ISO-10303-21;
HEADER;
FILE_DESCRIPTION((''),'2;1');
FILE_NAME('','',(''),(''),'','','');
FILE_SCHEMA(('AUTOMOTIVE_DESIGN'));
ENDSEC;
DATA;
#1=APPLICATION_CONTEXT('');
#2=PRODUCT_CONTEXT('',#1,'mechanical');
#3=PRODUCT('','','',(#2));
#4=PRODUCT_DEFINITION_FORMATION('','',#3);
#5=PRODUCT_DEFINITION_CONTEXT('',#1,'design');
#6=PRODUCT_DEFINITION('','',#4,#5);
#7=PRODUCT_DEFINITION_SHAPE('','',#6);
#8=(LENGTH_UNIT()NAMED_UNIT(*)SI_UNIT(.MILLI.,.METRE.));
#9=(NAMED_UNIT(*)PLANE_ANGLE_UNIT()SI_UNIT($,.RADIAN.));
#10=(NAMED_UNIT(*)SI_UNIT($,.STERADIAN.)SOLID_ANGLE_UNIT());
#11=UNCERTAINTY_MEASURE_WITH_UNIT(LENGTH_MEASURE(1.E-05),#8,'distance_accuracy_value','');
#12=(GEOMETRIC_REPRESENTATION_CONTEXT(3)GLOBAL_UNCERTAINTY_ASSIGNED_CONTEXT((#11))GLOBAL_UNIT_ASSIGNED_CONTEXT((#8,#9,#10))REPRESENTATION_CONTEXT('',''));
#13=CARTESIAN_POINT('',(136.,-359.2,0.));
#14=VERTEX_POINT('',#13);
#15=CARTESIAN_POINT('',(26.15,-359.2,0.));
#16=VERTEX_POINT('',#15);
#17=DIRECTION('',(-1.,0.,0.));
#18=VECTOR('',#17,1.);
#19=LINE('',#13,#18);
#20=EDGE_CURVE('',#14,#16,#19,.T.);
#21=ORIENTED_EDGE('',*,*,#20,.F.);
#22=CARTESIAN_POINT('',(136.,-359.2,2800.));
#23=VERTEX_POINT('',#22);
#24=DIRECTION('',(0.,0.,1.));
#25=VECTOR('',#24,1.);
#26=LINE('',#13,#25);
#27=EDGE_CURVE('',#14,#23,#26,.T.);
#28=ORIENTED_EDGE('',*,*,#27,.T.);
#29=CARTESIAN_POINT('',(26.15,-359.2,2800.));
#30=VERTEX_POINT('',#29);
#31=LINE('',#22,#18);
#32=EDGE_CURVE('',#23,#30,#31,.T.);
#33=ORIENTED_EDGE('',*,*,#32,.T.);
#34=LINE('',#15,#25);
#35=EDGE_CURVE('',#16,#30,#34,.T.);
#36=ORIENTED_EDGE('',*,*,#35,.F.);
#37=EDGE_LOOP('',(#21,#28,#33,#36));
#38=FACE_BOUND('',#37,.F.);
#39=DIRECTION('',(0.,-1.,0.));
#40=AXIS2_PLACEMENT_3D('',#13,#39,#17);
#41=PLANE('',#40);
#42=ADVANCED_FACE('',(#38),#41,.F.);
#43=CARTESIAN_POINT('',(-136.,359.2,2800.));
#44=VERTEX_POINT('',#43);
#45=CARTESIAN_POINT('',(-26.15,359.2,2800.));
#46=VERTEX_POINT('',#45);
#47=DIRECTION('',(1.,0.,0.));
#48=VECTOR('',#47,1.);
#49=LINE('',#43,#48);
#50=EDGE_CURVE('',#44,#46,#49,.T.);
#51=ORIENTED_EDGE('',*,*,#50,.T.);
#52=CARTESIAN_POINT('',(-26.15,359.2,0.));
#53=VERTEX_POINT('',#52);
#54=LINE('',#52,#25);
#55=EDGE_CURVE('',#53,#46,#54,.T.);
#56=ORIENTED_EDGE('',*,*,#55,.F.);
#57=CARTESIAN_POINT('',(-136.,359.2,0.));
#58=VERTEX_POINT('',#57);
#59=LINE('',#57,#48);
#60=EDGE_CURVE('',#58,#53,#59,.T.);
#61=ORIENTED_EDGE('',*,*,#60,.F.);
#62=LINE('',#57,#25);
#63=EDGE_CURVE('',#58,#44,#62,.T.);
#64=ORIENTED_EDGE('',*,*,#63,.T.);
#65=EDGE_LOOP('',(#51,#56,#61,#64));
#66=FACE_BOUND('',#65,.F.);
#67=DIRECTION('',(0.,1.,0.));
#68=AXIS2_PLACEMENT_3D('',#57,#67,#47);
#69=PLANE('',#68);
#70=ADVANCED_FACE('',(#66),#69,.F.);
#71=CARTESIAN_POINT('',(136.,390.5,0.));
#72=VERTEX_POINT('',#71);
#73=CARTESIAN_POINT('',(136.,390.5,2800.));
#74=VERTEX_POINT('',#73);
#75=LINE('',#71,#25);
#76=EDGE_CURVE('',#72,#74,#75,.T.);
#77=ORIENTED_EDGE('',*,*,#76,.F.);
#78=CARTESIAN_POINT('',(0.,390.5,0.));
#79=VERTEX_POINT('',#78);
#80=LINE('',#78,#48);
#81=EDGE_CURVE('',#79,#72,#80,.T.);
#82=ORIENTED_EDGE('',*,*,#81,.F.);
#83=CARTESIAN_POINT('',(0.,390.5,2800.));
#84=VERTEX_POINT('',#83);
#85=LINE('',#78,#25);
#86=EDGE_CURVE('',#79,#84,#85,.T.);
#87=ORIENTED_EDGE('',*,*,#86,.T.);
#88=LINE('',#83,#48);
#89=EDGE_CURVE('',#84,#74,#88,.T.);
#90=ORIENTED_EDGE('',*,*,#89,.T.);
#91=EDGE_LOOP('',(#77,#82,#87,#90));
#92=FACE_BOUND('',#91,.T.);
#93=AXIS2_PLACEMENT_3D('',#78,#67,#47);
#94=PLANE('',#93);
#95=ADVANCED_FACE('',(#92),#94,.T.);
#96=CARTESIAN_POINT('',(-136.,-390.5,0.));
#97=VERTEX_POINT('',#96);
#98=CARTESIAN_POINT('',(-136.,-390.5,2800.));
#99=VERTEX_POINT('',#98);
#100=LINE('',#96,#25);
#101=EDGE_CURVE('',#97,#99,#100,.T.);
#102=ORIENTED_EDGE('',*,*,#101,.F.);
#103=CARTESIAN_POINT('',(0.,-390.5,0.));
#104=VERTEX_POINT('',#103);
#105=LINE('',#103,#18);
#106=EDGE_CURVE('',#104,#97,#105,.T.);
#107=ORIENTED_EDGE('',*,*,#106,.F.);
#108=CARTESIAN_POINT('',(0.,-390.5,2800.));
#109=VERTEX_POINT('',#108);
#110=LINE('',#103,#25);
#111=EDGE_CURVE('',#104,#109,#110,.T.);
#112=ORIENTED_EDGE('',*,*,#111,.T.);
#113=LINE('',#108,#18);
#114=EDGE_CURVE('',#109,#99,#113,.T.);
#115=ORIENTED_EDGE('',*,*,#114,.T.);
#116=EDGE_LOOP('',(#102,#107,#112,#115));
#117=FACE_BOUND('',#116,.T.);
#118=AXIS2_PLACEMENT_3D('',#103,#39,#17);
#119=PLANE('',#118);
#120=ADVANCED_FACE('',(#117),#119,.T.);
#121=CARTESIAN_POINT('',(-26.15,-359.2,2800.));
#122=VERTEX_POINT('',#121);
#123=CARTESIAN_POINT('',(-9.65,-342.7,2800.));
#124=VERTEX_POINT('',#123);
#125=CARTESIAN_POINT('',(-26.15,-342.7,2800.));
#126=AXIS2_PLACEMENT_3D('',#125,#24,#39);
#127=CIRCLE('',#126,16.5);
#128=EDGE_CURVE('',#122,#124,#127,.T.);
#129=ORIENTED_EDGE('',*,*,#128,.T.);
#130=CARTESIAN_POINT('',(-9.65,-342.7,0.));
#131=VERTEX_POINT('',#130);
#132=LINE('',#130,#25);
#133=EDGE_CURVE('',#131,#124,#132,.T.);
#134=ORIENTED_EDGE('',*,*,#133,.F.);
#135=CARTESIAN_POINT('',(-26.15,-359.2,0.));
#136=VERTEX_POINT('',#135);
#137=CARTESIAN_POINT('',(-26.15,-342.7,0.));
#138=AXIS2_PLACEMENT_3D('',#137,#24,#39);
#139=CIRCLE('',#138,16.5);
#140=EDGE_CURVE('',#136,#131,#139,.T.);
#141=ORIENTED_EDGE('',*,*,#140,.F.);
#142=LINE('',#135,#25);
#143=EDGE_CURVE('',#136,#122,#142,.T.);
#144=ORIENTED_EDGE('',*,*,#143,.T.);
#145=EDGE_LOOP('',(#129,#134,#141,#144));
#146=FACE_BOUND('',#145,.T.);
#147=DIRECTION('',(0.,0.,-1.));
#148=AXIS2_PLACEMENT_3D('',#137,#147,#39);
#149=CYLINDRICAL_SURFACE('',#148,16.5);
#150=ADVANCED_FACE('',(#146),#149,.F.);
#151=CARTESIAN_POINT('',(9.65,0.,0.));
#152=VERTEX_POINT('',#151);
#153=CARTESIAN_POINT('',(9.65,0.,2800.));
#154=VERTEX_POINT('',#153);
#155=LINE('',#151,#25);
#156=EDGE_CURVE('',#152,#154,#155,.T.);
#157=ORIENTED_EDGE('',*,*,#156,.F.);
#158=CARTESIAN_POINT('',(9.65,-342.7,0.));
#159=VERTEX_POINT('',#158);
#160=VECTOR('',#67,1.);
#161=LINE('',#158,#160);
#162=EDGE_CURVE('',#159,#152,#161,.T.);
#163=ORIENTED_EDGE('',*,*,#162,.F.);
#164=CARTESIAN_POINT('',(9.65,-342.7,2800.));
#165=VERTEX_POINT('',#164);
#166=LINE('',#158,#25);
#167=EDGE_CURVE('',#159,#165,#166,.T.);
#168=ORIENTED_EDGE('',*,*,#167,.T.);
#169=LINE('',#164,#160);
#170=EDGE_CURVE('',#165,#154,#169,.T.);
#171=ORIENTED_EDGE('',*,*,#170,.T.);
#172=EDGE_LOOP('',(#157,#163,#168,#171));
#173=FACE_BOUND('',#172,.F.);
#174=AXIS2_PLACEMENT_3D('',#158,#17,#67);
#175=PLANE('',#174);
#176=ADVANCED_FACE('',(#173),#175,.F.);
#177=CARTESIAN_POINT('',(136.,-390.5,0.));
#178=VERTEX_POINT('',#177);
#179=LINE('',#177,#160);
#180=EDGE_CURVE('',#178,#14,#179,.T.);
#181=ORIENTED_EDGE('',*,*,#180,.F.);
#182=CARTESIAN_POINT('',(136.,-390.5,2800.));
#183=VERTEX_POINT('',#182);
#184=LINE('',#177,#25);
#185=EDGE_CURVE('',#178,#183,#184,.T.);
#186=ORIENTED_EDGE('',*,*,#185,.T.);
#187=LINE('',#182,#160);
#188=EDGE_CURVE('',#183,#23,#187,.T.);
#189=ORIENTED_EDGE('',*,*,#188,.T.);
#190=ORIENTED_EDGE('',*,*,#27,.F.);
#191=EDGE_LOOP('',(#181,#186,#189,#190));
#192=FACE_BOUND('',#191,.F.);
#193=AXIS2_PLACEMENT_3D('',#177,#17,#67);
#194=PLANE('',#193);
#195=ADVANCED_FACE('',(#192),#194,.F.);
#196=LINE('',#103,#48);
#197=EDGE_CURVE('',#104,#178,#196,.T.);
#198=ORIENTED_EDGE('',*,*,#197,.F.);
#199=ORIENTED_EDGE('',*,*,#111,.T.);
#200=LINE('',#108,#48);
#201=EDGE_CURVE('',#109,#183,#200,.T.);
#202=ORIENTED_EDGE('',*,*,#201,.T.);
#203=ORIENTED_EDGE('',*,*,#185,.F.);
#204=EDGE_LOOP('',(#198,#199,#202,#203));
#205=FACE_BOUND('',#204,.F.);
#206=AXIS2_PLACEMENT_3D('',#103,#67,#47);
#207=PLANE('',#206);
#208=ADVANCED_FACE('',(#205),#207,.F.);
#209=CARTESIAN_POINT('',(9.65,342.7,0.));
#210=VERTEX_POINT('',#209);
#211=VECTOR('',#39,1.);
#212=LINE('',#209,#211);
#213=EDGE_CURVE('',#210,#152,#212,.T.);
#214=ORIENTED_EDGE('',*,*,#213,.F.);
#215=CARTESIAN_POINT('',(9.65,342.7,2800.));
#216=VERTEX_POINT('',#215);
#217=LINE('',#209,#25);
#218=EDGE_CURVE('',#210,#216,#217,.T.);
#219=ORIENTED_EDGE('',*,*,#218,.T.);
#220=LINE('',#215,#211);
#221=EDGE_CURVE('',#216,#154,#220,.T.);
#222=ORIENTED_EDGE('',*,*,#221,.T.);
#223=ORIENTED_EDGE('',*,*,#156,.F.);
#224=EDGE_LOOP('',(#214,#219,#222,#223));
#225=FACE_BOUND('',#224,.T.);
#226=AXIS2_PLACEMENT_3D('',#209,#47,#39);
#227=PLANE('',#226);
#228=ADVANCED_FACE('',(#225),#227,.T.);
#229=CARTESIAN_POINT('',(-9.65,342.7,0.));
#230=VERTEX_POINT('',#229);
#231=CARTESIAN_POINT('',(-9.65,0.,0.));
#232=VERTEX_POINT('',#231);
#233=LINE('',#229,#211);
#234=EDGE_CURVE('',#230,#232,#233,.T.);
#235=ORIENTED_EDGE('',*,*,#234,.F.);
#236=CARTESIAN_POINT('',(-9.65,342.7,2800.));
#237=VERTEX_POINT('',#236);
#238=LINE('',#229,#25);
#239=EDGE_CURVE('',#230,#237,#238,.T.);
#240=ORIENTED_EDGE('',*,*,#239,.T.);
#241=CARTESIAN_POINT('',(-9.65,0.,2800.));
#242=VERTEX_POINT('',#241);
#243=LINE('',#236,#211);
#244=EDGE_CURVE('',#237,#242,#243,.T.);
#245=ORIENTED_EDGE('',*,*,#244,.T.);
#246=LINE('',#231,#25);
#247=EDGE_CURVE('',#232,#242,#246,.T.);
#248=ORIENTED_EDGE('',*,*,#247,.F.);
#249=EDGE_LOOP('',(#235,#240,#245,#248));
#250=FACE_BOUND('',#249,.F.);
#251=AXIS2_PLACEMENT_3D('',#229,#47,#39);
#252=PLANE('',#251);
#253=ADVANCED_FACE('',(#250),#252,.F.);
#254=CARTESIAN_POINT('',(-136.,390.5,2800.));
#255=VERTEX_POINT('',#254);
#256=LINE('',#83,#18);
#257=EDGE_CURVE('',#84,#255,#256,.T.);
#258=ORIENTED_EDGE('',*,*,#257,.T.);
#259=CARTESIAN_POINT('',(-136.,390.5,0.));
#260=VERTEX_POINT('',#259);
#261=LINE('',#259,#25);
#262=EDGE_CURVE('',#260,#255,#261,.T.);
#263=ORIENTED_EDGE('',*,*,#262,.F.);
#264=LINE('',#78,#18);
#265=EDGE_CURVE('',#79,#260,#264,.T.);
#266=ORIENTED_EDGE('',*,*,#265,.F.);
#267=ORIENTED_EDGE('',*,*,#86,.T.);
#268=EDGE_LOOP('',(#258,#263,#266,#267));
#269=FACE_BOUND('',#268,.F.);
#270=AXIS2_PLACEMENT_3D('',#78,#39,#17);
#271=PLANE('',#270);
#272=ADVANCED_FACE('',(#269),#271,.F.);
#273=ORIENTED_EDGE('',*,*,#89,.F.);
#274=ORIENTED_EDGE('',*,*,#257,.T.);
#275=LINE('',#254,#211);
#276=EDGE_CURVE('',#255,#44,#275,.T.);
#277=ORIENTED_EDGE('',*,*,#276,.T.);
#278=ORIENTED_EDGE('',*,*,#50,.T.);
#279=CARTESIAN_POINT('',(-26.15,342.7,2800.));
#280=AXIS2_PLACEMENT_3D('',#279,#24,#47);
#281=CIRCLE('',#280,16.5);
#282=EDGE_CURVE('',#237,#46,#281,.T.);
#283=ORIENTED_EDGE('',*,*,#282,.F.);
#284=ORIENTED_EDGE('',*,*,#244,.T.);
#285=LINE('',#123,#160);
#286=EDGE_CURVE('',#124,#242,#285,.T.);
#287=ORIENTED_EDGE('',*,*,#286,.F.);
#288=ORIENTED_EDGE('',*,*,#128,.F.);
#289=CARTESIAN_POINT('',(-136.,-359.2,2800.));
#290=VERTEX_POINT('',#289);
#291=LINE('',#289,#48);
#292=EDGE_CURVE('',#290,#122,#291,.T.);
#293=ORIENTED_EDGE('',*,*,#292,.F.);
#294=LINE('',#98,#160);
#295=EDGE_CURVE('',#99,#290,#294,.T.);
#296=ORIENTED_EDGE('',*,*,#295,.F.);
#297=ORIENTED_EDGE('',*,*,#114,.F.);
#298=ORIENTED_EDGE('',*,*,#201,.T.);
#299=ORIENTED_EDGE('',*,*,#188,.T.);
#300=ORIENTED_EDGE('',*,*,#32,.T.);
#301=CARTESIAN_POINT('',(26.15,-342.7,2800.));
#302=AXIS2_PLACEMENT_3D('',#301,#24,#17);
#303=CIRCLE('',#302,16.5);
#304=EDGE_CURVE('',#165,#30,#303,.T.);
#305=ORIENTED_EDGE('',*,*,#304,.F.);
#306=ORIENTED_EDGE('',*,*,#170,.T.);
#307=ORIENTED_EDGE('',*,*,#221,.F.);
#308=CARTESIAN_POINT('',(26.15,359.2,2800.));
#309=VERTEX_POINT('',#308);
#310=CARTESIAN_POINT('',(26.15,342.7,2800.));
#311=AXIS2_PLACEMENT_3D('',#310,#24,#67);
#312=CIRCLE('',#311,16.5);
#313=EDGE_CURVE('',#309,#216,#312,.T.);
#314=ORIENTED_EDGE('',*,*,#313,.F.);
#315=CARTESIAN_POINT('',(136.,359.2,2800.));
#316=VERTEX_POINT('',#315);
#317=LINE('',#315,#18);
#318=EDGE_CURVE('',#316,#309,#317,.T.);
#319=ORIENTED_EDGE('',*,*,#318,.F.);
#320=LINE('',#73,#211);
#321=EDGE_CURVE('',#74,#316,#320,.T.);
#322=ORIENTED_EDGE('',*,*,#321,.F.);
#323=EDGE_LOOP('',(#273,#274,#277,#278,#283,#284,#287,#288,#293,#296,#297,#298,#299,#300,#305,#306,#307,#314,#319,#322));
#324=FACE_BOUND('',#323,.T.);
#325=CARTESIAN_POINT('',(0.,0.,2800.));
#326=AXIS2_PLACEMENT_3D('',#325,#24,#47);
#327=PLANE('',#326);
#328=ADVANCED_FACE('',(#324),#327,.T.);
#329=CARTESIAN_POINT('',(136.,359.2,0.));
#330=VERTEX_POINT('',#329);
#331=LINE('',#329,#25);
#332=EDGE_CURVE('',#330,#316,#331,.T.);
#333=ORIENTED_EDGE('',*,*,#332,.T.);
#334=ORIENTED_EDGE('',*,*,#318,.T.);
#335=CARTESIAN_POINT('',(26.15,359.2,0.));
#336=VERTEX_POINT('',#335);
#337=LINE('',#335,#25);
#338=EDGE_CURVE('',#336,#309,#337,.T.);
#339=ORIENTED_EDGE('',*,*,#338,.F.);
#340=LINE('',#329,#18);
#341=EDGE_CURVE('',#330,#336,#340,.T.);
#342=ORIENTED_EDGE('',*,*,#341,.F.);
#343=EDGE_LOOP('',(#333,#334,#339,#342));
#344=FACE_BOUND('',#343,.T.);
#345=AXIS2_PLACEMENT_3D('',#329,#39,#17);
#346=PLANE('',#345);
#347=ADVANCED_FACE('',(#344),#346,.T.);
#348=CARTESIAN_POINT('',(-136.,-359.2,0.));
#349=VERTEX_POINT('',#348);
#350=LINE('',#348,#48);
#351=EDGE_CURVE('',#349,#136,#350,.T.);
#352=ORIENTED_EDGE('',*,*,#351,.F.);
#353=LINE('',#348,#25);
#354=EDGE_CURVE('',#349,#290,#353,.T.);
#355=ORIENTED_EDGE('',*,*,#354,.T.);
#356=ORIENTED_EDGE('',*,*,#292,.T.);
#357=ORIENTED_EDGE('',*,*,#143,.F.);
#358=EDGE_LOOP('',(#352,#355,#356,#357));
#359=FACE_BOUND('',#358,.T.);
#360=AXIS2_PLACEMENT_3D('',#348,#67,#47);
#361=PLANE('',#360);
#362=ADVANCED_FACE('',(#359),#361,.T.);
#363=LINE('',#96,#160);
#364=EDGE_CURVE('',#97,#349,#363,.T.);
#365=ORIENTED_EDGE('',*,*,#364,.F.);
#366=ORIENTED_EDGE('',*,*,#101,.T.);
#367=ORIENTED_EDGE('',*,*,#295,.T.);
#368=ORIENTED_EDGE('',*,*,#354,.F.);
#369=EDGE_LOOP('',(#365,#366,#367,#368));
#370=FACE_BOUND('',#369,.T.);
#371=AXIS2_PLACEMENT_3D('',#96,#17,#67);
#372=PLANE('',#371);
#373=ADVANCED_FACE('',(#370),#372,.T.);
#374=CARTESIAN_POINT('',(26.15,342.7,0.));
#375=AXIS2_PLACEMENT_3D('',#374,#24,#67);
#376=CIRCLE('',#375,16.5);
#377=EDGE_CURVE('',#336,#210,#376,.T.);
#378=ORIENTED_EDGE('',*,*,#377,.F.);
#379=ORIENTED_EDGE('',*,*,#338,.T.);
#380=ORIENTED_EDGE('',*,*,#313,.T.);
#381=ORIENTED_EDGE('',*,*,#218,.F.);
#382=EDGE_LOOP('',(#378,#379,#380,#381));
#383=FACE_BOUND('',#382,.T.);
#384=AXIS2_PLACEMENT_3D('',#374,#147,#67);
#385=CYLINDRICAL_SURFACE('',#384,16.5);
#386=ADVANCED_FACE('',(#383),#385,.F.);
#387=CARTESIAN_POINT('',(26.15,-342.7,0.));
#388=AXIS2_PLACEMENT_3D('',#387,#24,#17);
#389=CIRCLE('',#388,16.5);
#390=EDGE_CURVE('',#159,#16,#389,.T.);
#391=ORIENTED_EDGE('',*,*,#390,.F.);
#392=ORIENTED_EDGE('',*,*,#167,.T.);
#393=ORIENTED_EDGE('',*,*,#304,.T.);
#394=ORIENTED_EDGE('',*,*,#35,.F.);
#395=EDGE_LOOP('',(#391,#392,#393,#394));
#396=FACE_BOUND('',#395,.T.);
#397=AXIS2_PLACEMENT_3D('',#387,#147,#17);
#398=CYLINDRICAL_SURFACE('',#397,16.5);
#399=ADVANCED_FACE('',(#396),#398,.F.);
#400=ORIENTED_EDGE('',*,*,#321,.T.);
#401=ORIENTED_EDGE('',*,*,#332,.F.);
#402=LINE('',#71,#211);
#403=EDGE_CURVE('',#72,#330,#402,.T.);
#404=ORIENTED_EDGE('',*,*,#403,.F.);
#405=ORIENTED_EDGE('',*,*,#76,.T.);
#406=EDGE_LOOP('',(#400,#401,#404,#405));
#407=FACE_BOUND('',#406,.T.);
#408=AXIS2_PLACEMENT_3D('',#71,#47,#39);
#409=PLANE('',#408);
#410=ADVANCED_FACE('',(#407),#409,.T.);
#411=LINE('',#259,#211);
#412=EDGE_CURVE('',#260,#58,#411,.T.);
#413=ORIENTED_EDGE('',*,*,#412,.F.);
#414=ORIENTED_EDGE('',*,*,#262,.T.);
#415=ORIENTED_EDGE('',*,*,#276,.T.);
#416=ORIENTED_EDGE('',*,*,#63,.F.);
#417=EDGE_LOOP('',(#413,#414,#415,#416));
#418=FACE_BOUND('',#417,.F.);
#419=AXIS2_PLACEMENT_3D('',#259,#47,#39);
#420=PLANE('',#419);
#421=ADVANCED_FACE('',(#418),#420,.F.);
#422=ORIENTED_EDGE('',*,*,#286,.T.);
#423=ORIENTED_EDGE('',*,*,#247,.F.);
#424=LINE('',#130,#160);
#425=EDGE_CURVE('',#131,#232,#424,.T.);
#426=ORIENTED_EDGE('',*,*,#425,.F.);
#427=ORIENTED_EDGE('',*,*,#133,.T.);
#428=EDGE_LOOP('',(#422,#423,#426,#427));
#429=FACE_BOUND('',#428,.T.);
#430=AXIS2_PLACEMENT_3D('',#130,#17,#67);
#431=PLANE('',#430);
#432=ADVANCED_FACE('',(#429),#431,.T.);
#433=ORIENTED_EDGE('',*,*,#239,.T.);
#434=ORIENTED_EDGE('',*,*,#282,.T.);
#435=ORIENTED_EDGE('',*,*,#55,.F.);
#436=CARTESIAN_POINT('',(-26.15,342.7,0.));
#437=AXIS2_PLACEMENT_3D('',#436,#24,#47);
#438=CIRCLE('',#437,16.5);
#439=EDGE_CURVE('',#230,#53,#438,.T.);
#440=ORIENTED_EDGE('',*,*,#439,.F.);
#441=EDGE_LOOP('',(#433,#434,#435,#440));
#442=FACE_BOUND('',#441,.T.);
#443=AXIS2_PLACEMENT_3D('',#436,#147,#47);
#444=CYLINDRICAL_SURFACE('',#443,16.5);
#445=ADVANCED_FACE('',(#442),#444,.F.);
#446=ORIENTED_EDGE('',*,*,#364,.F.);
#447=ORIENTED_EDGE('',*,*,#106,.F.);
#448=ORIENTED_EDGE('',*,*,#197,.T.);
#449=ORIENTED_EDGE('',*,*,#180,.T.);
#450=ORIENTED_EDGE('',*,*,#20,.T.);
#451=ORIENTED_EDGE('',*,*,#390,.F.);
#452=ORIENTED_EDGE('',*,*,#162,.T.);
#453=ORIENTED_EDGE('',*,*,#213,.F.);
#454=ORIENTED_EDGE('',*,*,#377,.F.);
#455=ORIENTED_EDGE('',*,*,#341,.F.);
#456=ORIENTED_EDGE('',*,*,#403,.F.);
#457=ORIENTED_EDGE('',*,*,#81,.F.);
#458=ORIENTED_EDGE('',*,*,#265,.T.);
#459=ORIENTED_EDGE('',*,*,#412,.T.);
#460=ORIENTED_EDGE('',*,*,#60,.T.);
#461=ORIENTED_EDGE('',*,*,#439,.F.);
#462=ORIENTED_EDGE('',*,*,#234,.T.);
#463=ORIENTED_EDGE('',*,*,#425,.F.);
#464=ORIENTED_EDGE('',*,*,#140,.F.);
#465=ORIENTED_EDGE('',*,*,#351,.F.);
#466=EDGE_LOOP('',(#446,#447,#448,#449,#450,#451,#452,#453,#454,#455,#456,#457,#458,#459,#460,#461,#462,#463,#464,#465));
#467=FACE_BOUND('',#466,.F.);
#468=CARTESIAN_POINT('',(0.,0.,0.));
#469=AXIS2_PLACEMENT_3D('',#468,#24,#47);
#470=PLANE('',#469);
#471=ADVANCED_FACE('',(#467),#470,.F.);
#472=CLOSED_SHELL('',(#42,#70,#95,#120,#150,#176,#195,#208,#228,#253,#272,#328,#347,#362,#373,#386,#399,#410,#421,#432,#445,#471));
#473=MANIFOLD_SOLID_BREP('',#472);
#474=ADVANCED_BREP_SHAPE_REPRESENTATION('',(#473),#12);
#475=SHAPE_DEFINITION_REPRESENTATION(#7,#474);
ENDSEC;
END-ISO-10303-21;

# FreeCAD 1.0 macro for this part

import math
import FreeCAD as App
import Part
import Sketcher
from FreeCAD import Vector
Q = App.Units.Quantity

doc = App.newDocument("Part")
body = doc.addObject("PartDesign::Body", "Body")

sketch1 = body.newObject("Sketcher::SketchObject", "Sketch")
sketch1.AttachmentSupport = (doc.getObject("XY_Plane"), [""])
sketch1.MapMode = "FlatFace"
sketch1.addGeometry(Part.LineSegment(Vector(-136, -359, 0), Vector(-136, -390, 0)), False)
sketch1.addGeometry(Part.LineSegment(Vector(-136, -390, 0), Vector(136, -390, 0)), False)
sketch1.addGeometry(Part.LineSegment(Vector(136, -390, 0), Vector(136, -359, 0)), False)
sketch1.addGeometry(Part.LineSegment(Vector(136, -359, 0), Vector(26, -359, 0)), False)
sketch1.addGeometry(Part.ArcOfCircle(Part.Circle(Vector(26, -343, 0), Vector(0, 0, 1), 16), math.radians(180), math.radians(270)), False)
sketch1.addGeometry(Part.LineSegment(Vector(10, -343, 0), Vector(10, 343, 0)), False)
sketch1.addGeometry(Part.ArcOfCircle(Part.Circle(Vector(26, 343, 0), Vector(0, 0, 1), 16), math.radians(90), math.radians(180)), False)
sketch1.addGeometry(Part.LineSegment(Vector(26, 359, 0), Vector(136, 359, 0)), False)
sketch1.addGeometry(Part.LineSegment(Vector(136, 359, 0), Vector(136, 390, 0)), False)
sketch1.addGeometry(Part.LineSegment(Vector(136, 390, 0), Vector(-136, 390, 0)), False)
sketch1.addGeometry(Part.LineSegment(Vector(-136, 390, 0), Vector(-136, 359, 0)), False)
sketch1.addGeometry(Part.LineSegment(Vector(-136, 359, 0), Vector(-26, 359, 0)), False)
sketch1.addGeometry(Part.ArcOfCircle(Part.Circle(Vector(-26, 343, 0), Vector(0, 0, 1), 16), math.radians(0), math.radians(90)), False)
sketch1.addGeometry(Part.LineSegment(Vector(-10, 343, 0), Vector(-10, -343, 0)), False)
sketch1.addGeometry(Part.ArcOfCircle(Part.Circle(Vector(-26, -343, 0), Vector(0, 0, 1), 16), math.radians(-90), math.radians(0)), False)
sketch1.addGeometry(Part.LineSegment(Vector(-26, -359, 0), Vector(-136, -359, 0)), False)
sketch1.addConstraint(Sketcher.Constraint("Coincident", 0, 2, 1, 1))
sketch1.addConstraint(Sketcher.Constraint("Coincident", 1, 2, 2, 1))
sketch1.addConstraint(Sketcher.Constraint("Coincident", 2, 2, 3, 1))
sketch1.addConstraint(Sketcher.Constraint("Tangent", 3, 2, 4, 2))
sketch1.addConstraint(Sketcher.Constraint("Tangent", 4, 1, 5, 1))
sketch1.addConstraint(Sketcher.Constraint("Tangent", 5, 2, 6, 2))
sketch1.addConstraint(Sketcher.Constraint("Tangent", 6, 1, 7, 1))
sketch1.addConstraint(Sketcher.Constraint("Coincident", 7, 2, 8, 1))
sketch1.addConstraint(Sketcher.Constraint("Coincident", 8, 2, 9, 1))
sketch1.addConstraint(Sketcher.Constraint("Coincident", 9, 2, 10, 1))
sketch1.addConstraint(Sketcher.Constraint("Coincident", 10, 2, 11, 1))
sketch1.addConstraint(Sketcher.Constraint("Tangent", 11, 2, 12, 2))
sketch1.addConstraint(Sketcher.Constraint("Tangent", 12, 1, 13, 1))
sketch1.addConstraint(Sketcher.Constraint("Tangent", 13, 2, 14, 2))
sketch1.addConstraint(Sketcher.Constraint("Tangent", 14, 1, 15, 1))
sketch1.addConstraint(Sketcher.Constraint("Coincident", 15, 2, 0, 1))
sketch1.addConstraint(Sketcher.Constraint("Vertical", 0))
sketch1.addConstraint(Sketcher.Constraint("Horizontal", 1))
sketch1.addConstraint(Sketcher.Constraint("Vertical", 2))
sketch1.addConstraint(Sketcher.Constraint("Horizontal", 3))
sketch1.addConstraint(Sketcher.Constraint("Vertical", 5))
sketch1.addConstraint(Sketcher.Constraint("Horizontal", 7))
sketch1.addConstraint(Sketcher.Constraint("Vertical", 8))
sketch1.addConstraint(Sketcher.Constraint("Horizontal", 9))
sketch1.addConstraint(Sketcher.Constraint("Vertical", 10))
sketch1.addConstraint(Sketcher.Constraint("Horizontal", 11))
sketch1.addConstraint(Sketcher.Constraint("Vertical", 13))
sketch1.addConstraint(Sketcher.Constraint("Horizontal", 15))
sketch1.addConstraint(Sketcher.Constraint("Equal", 4, 6))
sketch1.addConstraint(Sketcher.Constraint("Equal", 6, 12))
sketch1.addConstraint(Sketcher.Constraint("Equal", 12, 14))
sketch1.addConstraint(Sketcher.Constraint("Symmetric", 4, 3, 12, 3, -1, 1))
sketch1.addConstraint(Sketcher.Constraint("Symmetric", 0, 2, 8, 2, -1, 1))
sketch1.addConstraint(Sketcher.Constraint("Symmetric", 7, 2, 10, 2, -2))
sketch1.addConstraint(Sketcher.Constraint("Symmetric", 2, 2, 15, 2, -2))
sketch1.addConstraint(Sketcher.Constraint("Radius", 4, Q("16.5 mm")))
sketch1.addConstraint(Sketcher.Constraint("DistanceY", 0, 2, 0, 1, Q("31.3 mm")))
sketch1.addConstraint(Sketcher.Constraint("DistanceX", 0, 2, -1, 1, Q("136 mm")))
sketch1.addConstraint(Sketcher.Constraint("DistanceY", 0, 2, -1, 1, Q("390.5 mm")))
sketch1.addConstraint(Sketcher.Constraint("DistanceX", -1, 1, 4, 1, Q("9.65 mm")))
pad1 = body.newObject("PartDesign::Pad", "Pad")
pad1.Profile = sketch1
pad1.Length = 2800

doc.recompute()
